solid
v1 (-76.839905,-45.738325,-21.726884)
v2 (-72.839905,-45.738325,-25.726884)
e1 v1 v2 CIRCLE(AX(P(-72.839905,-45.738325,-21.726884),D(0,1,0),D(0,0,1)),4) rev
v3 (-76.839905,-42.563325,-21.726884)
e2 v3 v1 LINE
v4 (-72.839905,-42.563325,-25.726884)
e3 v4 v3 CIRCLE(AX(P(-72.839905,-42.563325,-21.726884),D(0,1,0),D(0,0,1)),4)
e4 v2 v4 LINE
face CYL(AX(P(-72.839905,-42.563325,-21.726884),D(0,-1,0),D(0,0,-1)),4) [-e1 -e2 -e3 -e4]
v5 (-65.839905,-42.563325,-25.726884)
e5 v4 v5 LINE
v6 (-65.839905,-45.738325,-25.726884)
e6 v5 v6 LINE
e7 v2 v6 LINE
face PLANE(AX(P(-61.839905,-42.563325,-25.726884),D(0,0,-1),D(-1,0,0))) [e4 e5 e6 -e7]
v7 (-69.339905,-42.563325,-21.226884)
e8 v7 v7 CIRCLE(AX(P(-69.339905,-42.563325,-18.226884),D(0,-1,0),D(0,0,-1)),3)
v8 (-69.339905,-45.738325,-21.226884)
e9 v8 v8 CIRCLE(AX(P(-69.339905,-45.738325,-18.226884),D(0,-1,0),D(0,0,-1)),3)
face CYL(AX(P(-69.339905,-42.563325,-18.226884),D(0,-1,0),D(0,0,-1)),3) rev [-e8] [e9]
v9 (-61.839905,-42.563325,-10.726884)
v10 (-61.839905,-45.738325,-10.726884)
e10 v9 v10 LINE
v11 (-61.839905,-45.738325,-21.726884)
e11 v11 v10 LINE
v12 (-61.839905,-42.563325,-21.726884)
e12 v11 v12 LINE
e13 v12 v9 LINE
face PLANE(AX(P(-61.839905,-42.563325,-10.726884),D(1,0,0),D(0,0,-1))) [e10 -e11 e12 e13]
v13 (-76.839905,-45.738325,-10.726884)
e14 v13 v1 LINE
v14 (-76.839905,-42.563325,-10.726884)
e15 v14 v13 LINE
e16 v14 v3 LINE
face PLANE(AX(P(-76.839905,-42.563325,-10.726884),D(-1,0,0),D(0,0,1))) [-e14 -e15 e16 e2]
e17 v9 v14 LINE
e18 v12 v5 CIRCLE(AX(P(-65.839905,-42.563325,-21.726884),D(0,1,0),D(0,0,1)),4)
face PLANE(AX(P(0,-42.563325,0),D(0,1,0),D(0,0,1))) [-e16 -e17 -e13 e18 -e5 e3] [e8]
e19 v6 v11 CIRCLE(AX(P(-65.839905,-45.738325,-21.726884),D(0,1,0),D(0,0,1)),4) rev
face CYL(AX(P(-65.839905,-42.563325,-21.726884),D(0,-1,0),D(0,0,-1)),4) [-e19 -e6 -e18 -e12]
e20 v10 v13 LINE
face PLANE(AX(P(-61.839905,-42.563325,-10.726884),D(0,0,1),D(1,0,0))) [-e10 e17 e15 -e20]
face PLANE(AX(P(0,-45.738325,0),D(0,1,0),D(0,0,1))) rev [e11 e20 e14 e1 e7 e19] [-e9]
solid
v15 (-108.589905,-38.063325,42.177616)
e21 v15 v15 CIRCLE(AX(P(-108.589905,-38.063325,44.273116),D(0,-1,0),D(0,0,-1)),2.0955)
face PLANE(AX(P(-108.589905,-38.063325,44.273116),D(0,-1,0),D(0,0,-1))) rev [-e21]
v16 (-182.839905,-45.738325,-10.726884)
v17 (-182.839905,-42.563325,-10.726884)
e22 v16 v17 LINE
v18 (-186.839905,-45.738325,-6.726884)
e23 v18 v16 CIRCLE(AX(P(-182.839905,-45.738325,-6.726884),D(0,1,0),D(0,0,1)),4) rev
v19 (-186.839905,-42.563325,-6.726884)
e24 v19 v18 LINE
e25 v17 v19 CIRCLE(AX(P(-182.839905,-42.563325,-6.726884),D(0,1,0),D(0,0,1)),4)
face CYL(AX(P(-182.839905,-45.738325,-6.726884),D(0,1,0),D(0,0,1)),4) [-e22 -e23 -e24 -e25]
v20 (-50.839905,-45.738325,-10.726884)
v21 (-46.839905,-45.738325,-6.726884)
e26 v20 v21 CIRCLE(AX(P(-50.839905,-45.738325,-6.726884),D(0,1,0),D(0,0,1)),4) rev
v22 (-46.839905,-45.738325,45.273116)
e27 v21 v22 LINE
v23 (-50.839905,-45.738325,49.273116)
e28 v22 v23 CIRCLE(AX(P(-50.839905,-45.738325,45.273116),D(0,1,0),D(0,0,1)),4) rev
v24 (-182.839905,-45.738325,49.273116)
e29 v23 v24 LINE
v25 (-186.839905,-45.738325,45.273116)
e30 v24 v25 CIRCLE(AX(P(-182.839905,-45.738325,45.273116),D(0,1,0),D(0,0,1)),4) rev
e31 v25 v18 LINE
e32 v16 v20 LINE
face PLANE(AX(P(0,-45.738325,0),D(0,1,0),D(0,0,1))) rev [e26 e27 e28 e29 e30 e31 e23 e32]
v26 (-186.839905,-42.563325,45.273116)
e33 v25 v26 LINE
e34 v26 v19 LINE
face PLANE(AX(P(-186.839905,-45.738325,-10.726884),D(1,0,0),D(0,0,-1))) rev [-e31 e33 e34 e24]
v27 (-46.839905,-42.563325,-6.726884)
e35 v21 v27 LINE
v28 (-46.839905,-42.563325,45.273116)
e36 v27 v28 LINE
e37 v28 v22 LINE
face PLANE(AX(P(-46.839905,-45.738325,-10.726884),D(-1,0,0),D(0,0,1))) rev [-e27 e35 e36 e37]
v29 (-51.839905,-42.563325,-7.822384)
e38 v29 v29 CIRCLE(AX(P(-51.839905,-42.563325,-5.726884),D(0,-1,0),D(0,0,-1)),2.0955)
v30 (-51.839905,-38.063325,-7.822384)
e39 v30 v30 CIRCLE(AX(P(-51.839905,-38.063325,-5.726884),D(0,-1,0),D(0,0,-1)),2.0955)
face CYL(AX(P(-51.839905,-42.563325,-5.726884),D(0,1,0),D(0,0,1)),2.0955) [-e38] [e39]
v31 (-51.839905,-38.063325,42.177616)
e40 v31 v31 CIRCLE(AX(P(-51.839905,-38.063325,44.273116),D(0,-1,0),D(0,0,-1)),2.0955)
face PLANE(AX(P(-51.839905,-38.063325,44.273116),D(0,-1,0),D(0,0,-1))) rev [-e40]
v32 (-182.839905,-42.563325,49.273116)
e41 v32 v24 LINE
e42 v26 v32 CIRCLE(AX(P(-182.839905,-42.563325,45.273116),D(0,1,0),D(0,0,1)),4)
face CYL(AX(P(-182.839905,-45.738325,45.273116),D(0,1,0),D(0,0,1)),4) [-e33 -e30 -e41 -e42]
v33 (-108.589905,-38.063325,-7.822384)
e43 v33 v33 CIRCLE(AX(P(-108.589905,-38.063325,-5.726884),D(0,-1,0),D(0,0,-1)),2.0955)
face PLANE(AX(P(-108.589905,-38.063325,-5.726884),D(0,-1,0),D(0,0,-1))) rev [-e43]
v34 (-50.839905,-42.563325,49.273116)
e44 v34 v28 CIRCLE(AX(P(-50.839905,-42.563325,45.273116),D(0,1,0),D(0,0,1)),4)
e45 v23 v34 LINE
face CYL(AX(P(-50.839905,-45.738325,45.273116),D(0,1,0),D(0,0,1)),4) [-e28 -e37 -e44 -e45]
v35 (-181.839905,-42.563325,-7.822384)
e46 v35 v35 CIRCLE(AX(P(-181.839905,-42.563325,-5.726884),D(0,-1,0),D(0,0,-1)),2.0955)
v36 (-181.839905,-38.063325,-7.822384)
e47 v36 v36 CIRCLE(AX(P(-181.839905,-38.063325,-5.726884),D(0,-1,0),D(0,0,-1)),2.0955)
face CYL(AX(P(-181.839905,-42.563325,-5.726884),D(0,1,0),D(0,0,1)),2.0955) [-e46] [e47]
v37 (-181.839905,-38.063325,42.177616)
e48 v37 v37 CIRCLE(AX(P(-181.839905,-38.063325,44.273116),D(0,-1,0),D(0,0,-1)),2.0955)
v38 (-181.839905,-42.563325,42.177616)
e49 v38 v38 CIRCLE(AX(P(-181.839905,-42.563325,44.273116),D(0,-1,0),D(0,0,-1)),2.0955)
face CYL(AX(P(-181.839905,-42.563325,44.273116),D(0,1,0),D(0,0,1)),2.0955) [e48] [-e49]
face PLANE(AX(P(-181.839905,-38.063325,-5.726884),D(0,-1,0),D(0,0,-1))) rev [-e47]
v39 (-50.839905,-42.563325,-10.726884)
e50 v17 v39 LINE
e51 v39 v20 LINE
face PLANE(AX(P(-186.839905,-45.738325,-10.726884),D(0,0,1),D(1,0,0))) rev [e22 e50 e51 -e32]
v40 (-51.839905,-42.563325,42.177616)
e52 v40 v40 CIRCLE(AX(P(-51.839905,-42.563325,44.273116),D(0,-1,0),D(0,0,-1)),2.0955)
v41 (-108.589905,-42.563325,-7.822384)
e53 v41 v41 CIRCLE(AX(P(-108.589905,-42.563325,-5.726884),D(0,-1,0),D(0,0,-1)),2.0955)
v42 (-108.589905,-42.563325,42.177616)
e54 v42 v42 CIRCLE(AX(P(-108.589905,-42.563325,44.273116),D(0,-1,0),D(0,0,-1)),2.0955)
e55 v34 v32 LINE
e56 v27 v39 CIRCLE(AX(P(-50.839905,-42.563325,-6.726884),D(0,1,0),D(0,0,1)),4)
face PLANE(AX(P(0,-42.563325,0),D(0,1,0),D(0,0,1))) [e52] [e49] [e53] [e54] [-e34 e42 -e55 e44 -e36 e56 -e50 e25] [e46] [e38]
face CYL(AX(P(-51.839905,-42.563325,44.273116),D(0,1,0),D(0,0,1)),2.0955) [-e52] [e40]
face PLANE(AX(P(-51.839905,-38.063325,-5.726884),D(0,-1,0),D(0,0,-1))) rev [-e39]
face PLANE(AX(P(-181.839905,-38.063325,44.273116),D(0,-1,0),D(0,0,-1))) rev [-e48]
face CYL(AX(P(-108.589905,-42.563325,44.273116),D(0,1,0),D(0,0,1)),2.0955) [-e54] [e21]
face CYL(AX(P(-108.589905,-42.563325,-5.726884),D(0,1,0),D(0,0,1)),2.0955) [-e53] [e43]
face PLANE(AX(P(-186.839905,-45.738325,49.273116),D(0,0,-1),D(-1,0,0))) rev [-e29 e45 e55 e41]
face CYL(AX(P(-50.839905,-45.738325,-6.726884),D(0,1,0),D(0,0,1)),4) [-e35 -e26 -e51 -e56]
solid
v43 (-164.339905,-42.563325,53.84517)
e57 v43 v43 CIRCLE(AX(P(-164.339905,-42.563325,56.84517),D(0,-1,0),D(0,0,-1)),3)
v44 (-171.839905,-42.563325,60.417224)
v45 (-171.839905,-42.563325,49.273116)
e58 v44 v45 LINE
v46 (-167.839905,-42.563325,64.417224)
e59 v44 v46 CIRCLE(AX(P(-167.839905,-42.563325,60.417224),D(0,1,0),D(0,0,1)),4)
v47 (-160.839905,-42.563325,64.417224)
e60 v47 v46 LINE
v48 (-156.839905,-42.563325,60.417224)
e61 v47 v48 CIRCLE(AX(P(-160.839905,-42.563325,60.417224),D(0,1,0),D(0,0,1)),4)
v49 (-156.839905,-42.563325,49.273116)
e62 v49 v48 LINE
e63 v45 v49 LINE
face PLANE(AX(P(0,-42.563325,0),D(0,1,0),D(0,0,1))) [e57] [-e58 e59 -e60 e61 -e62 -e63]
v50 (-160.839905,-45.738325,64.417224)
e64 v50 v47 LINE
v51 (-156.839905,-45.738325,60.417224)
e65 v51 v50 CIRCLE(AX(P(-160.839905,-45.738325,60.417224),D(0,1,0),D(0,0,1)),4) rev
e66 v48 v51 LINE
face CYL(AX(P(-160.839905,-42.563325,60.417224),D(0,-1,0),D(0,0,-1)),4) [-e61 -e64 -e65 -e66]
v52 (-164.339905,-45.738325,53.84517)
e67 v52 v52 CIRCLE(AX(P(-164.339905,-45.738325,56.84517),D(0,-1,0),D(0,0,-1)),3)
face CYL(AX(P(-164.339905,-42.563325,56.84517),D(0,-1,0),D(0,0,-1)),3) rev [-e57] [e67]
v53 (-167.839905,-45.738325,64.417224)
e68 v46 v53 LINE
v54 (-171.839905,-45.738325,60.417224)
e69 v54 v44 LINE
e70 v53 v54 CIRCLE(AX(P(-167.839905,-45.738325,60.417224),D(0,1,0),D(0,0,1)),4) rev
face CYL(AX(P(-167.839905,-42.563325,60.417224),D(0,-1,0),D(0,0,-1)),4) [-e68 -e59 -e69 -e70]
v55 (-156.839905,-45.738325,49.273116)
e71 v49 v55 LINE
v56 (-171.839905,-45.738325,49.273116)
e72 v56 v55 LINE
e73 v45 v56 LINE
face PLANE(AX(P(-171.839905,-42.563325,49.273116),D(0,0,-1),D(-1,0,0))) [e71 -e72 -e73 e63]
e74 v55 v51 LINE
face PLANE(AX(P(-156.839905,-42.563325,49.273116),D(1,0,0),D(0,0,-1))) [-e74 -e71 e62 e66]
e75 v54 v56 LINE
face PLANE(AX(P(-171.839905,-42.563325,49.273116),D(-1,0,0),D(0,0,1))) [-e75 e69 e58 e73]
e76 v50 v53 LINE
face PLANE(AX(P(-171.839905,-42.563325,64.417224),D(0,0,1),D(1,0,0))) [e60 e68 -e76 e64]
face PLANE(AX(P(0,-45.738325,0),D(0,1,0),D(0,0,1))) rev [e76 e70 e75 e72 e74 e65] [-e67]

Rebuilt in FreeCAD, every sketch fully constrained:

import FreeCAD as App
import Part
import Sketcher

V = App.Vector


def edges_at(feature, points):
    """Names of the edges that pass closest to the given points."""
    edges = feature.Shape.Edges
    near = lambda p: min(range(len(edges)), key=lambda i: edges[i].distToShape(Part.Vertex(*p))[0])
    return sorted({f"Edge{near(p) + 1}" for p in points})

doc = App.newDocument("Part")
params = doc.addObject("Spreadsheet::Sheet", "Params")
for row, (alias, value) in enumerate([
    ("pad1_length", "4.5 mm"),
    ("pad2_length", "4.5 mm"),
    ("pad3_length", "4.5 mm"),
    ("pad4_length", "4.5 mm"),
    ("pad5_length", "4.5 mm"),
    ("pad6_length", "4.5 mm"),
    ("sketch7_width", "140 mm"),
    ("sketch7_height", "60 mm"),
    ("pad7_length", "3.175 mm"),
    ("fillet_radius", "4 mm"),
    ("sketch8_diameter", "6 mm"),
    ("sketch8_width", "15 mm"),
    ("pad8_length", "3.175 mm"),
    ("fillet2_radius", "4 mm"),
    ("sketch9_diameter", "6 mm"),
    ("sketch9_width", "15 mm"),
    ("pad9_length", "3.175 mm"),
    ("fillet3_radius", "4 mm"),
], start=1):
    params.set(f"A{row}", alias)
    params.set(f"B{row}", "=" + value)
    params.setAlias(f"B{row}", alias)

body = doc.addObject("PartDesign::Body", "Body")

sketch1 = body.newObject("Sketcher::SketchObject", "Sketch")
sketch1.AttachmentSupport = (doc.getObject("XZ_Plane"), [""])
sketch1.MapMode = "FlatFace"
sketch1.AttachmentOffset = App.Placement(V(0, 0, 38.063325), App.Rotation())
sketch1.addGeometry(Part.Circle(V(-181.8, -5.7, 0), V(0, 0, 1), 2.1), False)
sketch1.addConstraint([
    Sketcher.Constraint("Diameter", 0, 4.191),
    Sketcher.Constraint("DistanceX", 0, 3, -1, 1, 181.839905),
    Sketcher.Constraint("DistanceY", 0, 3, -1, 1, 5.726884),
])
pad1 = body.newObject("PartDesign::Pad", "Pad")
pad1.Profile = sketch1
pad1.setExpression("Length", "Params.pad1_length")
body2 = doc.addObject("PartDesign::Body", "Body001")

sketch2 = body2.newObject("Sketcher::SketchObject", "Sketch001")
sketch2.AttachmentSupport = (doc.getObject("XZ_Plane001"), [""])
sketch2.MapMode = "FlatFace"
sketch2.AttachmentOffset = App.Placement(V(0, 0, 38.063325), App.Rotation())
sketch2.addGeometry(Part.Circle(V(-108.6, -5.7, 0), V(0, 0, 1), 2.1), False)
sketch2.addConstraint([
    Sketcher.Constraint("Diameter", 0, 4.191),
    Sketcher.Constraint("DistanceX", 0, 3, -1, 1, 108.589905),
    Sketcher.Constraint("DistanceY", 0, 3, -1, 1, 5.726884),
])
pad2 = body2.newObject("PartDesign::Pad", "Pad001")
pad2.Profile = sketch2
pad2.setExpression("Length", "Params.pad2_length")
body3 = doc.addObject("PartDesign::Body", "Body002")

sketch3 = body3.newObject("Sketcher::SketchObject", "Sketch002")
sketch3.AttachmentSupport = (doc.getObject("XZ_Plane002"), [""])
sketch3.MapMode = "FlatFace"
sketch3.AttachmentOffset = App.Placement(V(0, 0, 38.063325), App.Rotation())
sketch3.addGeometry(Part.Circle(V(-51.8, -5.7, 0), V(0, 0, 1), 2.1), False)
sketch3.addConstraint([
    Sketcher.Constraint("Diameter", 0, 4.191),
    Sketcher.Constraint("DistanceX", 0, 3, -1, 1, 51.839905),
    Sketcher.Constraint("DistanceY", 0, 3, -1, 1, 5.726884),
])
pad3 = body3.newObject("PartDesign::Pad", "Pad002")
pad3.Profile = sketch3
pad3.setExpression("Length", "Params.pad3_length")
body4 = doc.addObject("PartDesign::Body", "Body003")

sketch4 = body4.newObject("Sketcher::SketchObject", "Sketch003")
sketch4.AttachmentSupport = (doc.getObject("XZ_Plane003"), [""])
sketch4.MapMode = "FlatFace"
sketch4.AttachmentOffset = App.Placement(V(0, 0, 38.063325), App.Rotation())
sketch4.addGeometry(Part.Circle(V(-51.8, 44.3, 0), V(0, 0, 1), 2.1), False)
sketch4.addConstraint([
    Sketcher.Constraint("Diameter", 0, 4.191),
    Sketcher.Constraint("DistanceX", 0, 3, -1, 1, 51.839905),
    Sketcher.Constraint("DistanceY", -1, 1, 0, 3, 44.273116),
])
pad4 = body4.newObject("PartDesign::Pad", "Pad003")
pad4.Profile = sketch4
pad4.setExpression("Length", "Params.pad4_length")
body5 = doc.addObject("PartDesign::Body", "Body004")

sketch5 = body5.newObject("Sketcher::SketchObject", "Sketch004")
sketch5.AttachmentSupport = (doc.getObject("XZ_Plane004"), [""])
sketch5.MapMode = "FlatFace"
sketch5.AttachmentOffset = App.Placement(V(0, 0, 38.063325), App.Rotation())
sketch5.addGeometry(Part.Circle(V(-108.6, 44.3, 0), V(0, 0, 1), 2.1), False)
sketch5.addConstraint([
    Sketcher.Constraint("Diameter", 0, 4.191),
    Sketcher.Constraint("DistanceX", 0, 3, -1, 1, 108.589905),
    Sketcher.Constraint("DistanceY", -1, 1, 0, 3, 44.273116),
])
pad5 = body5.newObject("PartDesign::Pad", "Pad004")
pad5.Profile = sketch5
pad5.setExpression("Length", "Params.pad5_length")
body6 = doc.addObject("PartDesign::Body", "Body005")

sketch6 = body6.newObject("Sketcher::SketchObject", "Sketch005")
sketch6.AttachmentSupport = (doc.getObject("XZ_Plane005"), [""])
sketch6.MapMode = "FlatFace"
sketch6.AttachmentOffset = App.Placement(V(0, 0, 38.063325), App.Rotation())
sketch6.addGeometry(Part.Circle(V(-181.8, 44.3, 0), V(0, 0, 1), 2.1), False)
sketch6.addConstraint([
    Sketcher.Constraint("Diameter", 0, 4.191),
    Sketcher.Constraint("DistanceX", 0, 3, -1, 1, 181.839905),
    Sketcher.Constraint("DistanceY", -1, 1, 0, 3, 44.273116),
])
pad6 = body6.newObject("PartDesign::Pad", "Pad005")
pad6.Profile = sketch6
pad6.setExpression("Length", "Params.pad6_length")
body.AllowCompound = True
doc.recompute()

boolean = body.newObject("PartDesign::Boolean", "Boolean")
boolean.Type = "Fuse"
boolean.addObjects([body2])
doc.recompute()

boolean2 = body.newObject("PartDesign::Boolean", "Boolean001")
boolean2.Type = "Fuse"
boolean2.addObjects([body3])
doc.recompute()

boolean3 = body.newObject("PartDesign::Boolean", "Boolean002")
boolean3.Type = "Fuse"
boolean3.addObjects([body4])
doc.recompute()

boolean4 = body.newObject("PartDesign::Boolean", "Boolean003")
boolean4.Type = "Fuse"
boolean4.addObjects([body5])
doc.recompute()

boolean5 = body.newObject("PartDesign::Boolean", "Boolean004")
boolean5.Type = "Fuse"
boolean5.addObjects([body6])

sketch7 = body.newObject("Sketcher::SketchObject", "Sketch006")
sketch7.AttachmentSupport = (doc.getObject("XZ_Plane"), [""])
sketch7.MapMode = "FlatFace"
sketch7.AttachmentOffset = App.Placement(V(0, 0, 42.563325), App.Rotation())
sketch7.addGeometry([
    Part.LineSegment(V(-187, 49, 0), V(-187, -11, 0)),
    Part.LineSegment(V(-187, -11, 0), V(-47, -11, 0)),
    Part.LineSegment(V(-47, -11, 0), V(-47, 49, 0)),
    Part.LineSegment(V(-47, 49, 0), V(-187, 49, 0)),
], False)
sketch7.addConstraint([
    Sketcher.Constraint("Coincident", 0, 2, 1, 1),
    Sketcher.Constraint("Coincident", 1, 2, 2, 1),
    Sketcher.Constraint("Coincident", 2, 2, 3, 1),
    Sketcher.Constraint("Coincident", 3, 2, 0, 1),
    Sketcher.Constraint("Vertical", 0),
    Sketcher.Constraint("Horizontal", 1),
    Sketcher.Constraint("Vertical", 2),
    Sketcher.Constraint("Horizontal", 3),
    Sketcher.Constraint("DistanceX", 1, 1, 1, 2, 140.0),
    Sketcher.Constraint("DistanceY", 0, 2, 0, 1, 60.0),
    Sketcher.Constraint("DistanceX", 0, 2, -1, 1, 186.839905),
    Sketcher.Constraint("DistanceY", 0, 2, -1, 1, 10.726884),
])
sketch7.setExpression("Constraints[8]", "Params.sketch7_width")
sketch7.setExpression("Constraints[9]", "Params.sketch7_height")
pad7 = body.newObject("PartDesign::Pad", "Pad006")
pad7.Profile = sketch7
pad7.setExpression("Length", "Params.pad7_length")
doc.recompute()

fillet = body.newObject("PartDesign::Fillet", "Fillet")
fillet.Base = (pad7, edges_at(pad7, [
    (-46.84, -44.151, -10.727),
    (-46.84, -44.151, 49.273),
    (-186.84, -44.151, 49.273),
    (-186.84, -44.151, -10.727),
]))
fillet.setExpression("Radius", "Params.fillet_radius")
body7 = doc.addObject("PartDesign::Body", "Body006")

sketch8 = body7.newObject("Sketcher::SketchObject", "Sketch007")
sketch8.AttachmentSupport = (doc.getObject("XZ_Plane006"), [""])
sketch8.MapMode = "FlatFace"
sketch8.AttachmentOffset = App.Placement(V(0, 0, 45.738325), App.Rotation())
sketch8.addGeometry([
    Part.LineSegment(V(-171.8, 64.4, 0), V(-171.8, 49.3, 0)),
    Part.LineSegment(V(-171.8, 49.3, 0), V(-156.8, 49.3, 0)),
    Part.LineSegment(V(-156.8, 49.3, 0), V(-156.8, 64.4, 0)),
    Part.LineSegment(V(-156.8, 64.4, 0), V(-171.8, 64.4, 0)),
    Part.Circle(V(-164.3, 56.8, 0), V(0, 0, 1), 3),
], False)
sketch8.addConstraint([
    Sketcher.Constraint("Coincident", 0, 2, 1, 1),
    Sketcher.Constraint("Coincident", 1, 2, 2, 1),
    Sketcher.Constraint("Coincident", 2, 2, 3, 1),
    Sketcher.Constraint("Coincident", 3, 2, 0, 1),
    Sketcher.Constraint("Vertical", 0),
    Sketcher.Constraint("Horizontal", 1),
    Sketcher.Constraint("Vertical", 2),
    Sketcher.Constraint("Horizontal", 3),
    Sketcher.Constraint("Diameter", 4, 6.0),
    Sketcher.Constraint("DistanceX", 1, 1, 1, 2, 15.0),
    Sketcher.Constraint("DistanceX", 0, 2, 4, 3, 7.5),
    Sketcher.Constraint("DistanceY", 0, 2, 0, 1, 15.144108),
    Sketcher.Constraint("DistanceY", -1, 1, 4, 3, 56.84517),
    Sketcher.Constraint("DistanceX", 4, 3, -1, 1, 164.339905),
    Sketcher.Constraint("DistanceY", -1, 1, 0, 2, 49.273116),
])
sketch8.setExpression("Constraints[8]", "Params.sketch8_diameter")
sketch8.setExpression("Constraints[9]", "Params.sketch8_width")
pad8 = body7.newObject("PartDesign::Pad", "Pad007")
pad8.Profile = sketch8
pad8.setExpression("Length", "Params.pad8_length")
pad8.Reversed = True
doc.recompute()

fillet2 = body7.newObject("PartDesign::Fillet", "Fillet001")
fillet2.Base = (pad8, edges_at(pad8, [(-171.84, -44.151, 64.417), (-156.84, -44.151, 64.417)]))
fillet2.setExpression("Radius", "Params.fillet2_radius")
body8 = doc.addObject("PartDesign::Body", "Body007")

sketch9 = body8.newObject("Sketcher::SketchObject", "Sketch008")
sketch9.AttachmentSupport = (doc.getObject("XZ_Plane007"), [""])
sketch9.MapMode = "FlatFace"
sketch9.AttachmentOffset = App.Placement(V(0, 0, 45.738325), App.Rotation())
sketch9.addGeometry([
    Part.LineSegment(V(-76.8, -10.7, 0), V(-76.8, -25.7, 0)),
    Part.LineSegment(V(-76.8, -25.7, 0), V(-61.8, -25.7, 0)),
    Part.LineSegment(V(-61.8, -25.7, 0), V(-61.8, -10.7, 0)),
    Part.LineSegment(V(-61.8, -10.7, 0), V(-76.8, -10.7, 0)),
    Part.Circle(V(-69.3, -18.2, 0), V(0, 0, 1), 3),
], False)
sketch9.addConstraint([
    Sketcher.Constraint("Coincident", 0, 2, 1, 1),
    Sketcher.Constraint("Coincident", 1, 2, 2, 1),
    Sketcher.Constraint("Coincident", 2, 2, 3, 1),
    Sketcher.Constraint("Coincident", 3, 2, 0, 1),
    Sketcher.Constraint("Vertical", 0),
    Sketcher.Constraint("Horizontal", 1),
    Sketcher.Constraint("Vertical", 2),
    Sketcher.Constraint("Horizontal", 3),
    Sketcher.Constraint("Equal", 3, 0),
    Sketcher.Constraint("Diameter", 4, 6.0),
    Sketcher.Constraint("DistanceX", 1, 1, 1, 2, 15.0),
    Sketcher.Constraint("DistanceX", 0, 2, 4, 3, 7.5),
    Sketcher.Constraint("DistanceY", 0, 2, 4, 3, 7.5),
    Sketcher.Constraint("DistanceX", 4, 3, -1, 1, 69.339905),
    Sketcher.Constraint("DistanceY", 4, 3, -1, 1, 18.226884),
])
sketch9.setExpression("Constraints[9]", "Params.sketch9_diameter")
sketch9.setExpression("Constraints[10]", "Params.sketch9_width")
pad9 = body8.newObject("PartDesign::Pad", "Pad008")
pad9.Profile = sketch9
pad9.setExpression("Length", "Params.pad9_length")
pad9.Reversed = True
doc.recompute()

fillet3 = body8.newObject("PartDesign::Fillet", "Fillet002")
fillet3.Base = (pad9, edges_at(pad9, [(-76.84, -44.151, -25.727), (-61.84, -44.151, -25.727)]))
fillet3.setExpression("Radius", "Params.fillet3_radius")

doc.recompute()
